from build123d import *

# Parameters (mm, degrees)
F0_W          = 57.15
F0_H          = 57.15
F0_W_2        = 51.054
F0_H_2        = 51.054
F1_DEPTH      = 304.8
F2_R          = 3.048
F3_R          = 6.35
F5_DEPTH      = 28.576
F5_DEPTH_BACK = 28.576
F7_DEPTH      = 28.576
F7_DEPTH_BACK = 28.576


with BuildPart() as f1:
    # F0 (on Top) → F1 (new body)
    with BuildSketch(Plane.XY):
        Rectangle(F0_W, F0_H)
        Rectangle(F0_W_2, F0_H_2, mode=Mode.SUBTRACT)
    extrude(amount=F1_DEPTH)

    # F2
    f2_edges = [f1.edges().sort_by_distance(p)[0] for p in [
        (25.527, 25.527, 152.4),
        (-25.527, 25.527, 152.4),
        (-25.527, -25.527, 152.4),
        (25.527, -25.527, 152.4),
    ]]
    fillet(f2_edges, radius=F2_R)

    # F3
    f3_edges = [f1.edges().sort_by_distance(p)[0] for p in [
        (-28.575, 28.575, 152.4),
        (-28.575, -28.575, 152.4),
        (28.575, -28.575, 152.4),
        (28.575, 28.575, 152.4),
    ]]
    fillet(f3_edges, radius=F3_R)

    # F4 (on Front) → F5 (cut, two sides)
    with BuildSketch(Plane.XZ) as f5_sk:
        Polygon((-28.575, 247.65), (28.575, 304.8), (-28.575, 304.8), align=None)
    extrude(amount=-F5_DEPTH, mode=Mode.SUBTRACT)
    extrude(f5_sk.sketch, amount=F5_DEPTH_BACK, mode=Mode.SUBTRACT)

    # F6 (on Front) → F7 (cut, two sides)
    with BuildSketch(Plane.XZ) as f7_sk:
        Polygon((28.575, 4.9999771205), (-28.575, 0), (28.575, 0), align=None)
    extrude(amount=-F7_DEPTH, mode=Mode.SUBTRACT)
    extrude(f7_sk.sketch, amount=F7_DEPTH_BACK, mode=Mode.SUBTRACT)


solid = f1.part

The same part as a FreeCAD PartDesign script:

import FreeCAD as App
import Part
import Sketcher

V = App.Vector
Q = App.Units.Quantity


def edges_at(feature, points):
    """Names of the edges that pass closest to the given points."""
    edges = feature.Shape.Edges
    near = lambda p: min(range(len(edges)), key=lambda i: edges[i].distToShape(Part.Vertex(*p))[0])
    return sorted({f"Edge{near(p) + 1}" for p in points})


def add_polygon(sketch, points):
    """Adds a closed chain of lines whose ends are joined by coincident constraints."""
    first, n = sketch.GeometryCount, len(points)
    for a, b in zip(points, points[1:] + points[:1]):
        sketch.addGeometry(Part.LineSegment(App.Vector(*a, 0), App.Vector(*b, 0)), False)
    for i in range(n):
        sketch.addConstraint(Sketcher.Constraint("Coincident", first + i, 2, first + (i + 1) % n, 1))

doc = App.newDocument("Part")
params = doc.addObject("Spreadsheet::Sheet", "Params")
for row, (alias, value) in enumerate([
    ("sketch1_width", "2.25 in"),
    ("sketch1_width2", "2.01 in"),
    ("pad1_length", "12 in"),
    ("fillet_radius", "0.12 in"),
    ("fillet2_radius", "0.25 in"),
    ("sketch2_width", "2.25 in"),
    ("sketch3_width", "2.25 in"),
], start=1):
    params.set(f"A{row}", alias)
    params.set(f"B{row}", "=" + value)
    params.setAlias(f"B{row}", alias)

body = doc.addObject("PartDesign::Body", "Body")

# Sketch on XY plane
sketch1 = body.newObject("Sketcher::SketchObject", "Sketch")
sketch1.AttachmentSupport = (doc.getObject("XY_Plane"), [""])
sketch1.MapMode = "FlatFace"
add_polygon(sketch1, [(-29, 29), (-29, -29), (29, -29), (29, 29)])  # lines 0-3
add_polygon(sketch1, [(26, -26), (-26, -26), (-26, 26), (26, 26)])  # lines 4-7
sketch1.addConstraint(Sketcher.Constraint("Vertical", 0))
sketch1.addConstraint(Sketcher.Constraint("Horizontal", 1))
sketch1.addConstraint(Sketcher.Constraint("Vertical", 2))
sketch1.addConstraint(Sketcher.Constraint("Horizontal", 3))
sketch1.addConstraint(Sketcher.Constraint("Horizontal", 4))
sketch1.addConstraint(Sketcher.Constraint("Vertical", 5))
sketch1.addConstraint(Sketcher.Constraint("Horizontal", 6))
sketch1.addConstraint(Sketcher.Constraint("Vertical", 7))
sketch1.addConstraint(Sketcher.Constraint("Symmetric", 0, 2, 2, 2, -1, 1))
sketch1.addConstraint(Sketcher.Constraint("Symmetric", 4, 2, 6, 2, -1, 1))
sketch1.addConstraint(Sketcher.Constraint("Equal", 3, 0))
sketch1.addConstraint(Sketcher.Constraint("Equal", 6, 5))
sketch1.addConstraint(Sketcher.Constraint("DistanceX", 1, 1, 1, 2, Q("2.25 in")))
sketch1.addConstraint(Sketcher.Constraint("DistanceX", 4, 2, 4, 1, Q("2.01 in")))
sketch1.setExpression("Constraints[20]", "Params.sketch1_width")
sketch1.setExpression("Constraints[21]", "Params.sketch1_width2")
pad1 = body.newObject("PartDesign::Pad", "Pad")
pad1.Profile = sketch1
pad1.setExpression("Length", "Params.pad1_length")
doc.recompute()

fillet = body.newObject("PartDesign::Fillet", "Fillet")
fillet.Base = (pad1, edges_at(pad1, [
    (25.527, 25.527, 152.4),
    (-25.527, 25.527, 152.4),
    (-25.527, -25.527, 152.4),
    (25.527, -25.527, 152.4),
]))
fillet.setExpression("Radius", "Params.fillet_radius")
doc.recompute()

fillet2 = body.newObject("PartDesign::Fillet", "Fillet001")
fillet2.Base = (fillet, edges_at(fillet, [
    (-28.575, 28.575, 152.4),
    (-28.575, -28.575, 152.4),
    (28.575, -28.575, 152.4),
    (28.575, 28.575, 152.4),
]))
fillet2.setExpression("Radius", "Params.fillet2_radius")

# Sketch on XZ plane
sketch2 = body.newObject("Sketcher::SketchObject", "Sketch001")
sketch2.AttachmentSupport = (doc.getObject("XZ_Plane"), [""])
sketch2.MapMode = "FlatFace"
add_polygon(sketch2, [(-29, 248), (29, 305), (-29, 305)])  # lines 0-2
sketch2.addConstraint(Sketcher.Constraint("Horizontal", 1))
sketch2.addConstraint(Sketcher.Constraint("Vertical", 2))
sketch2.addConstraint(Sketcher.Constraint("Equal", 1, 2))
sketch2.addConstraint(Sketcher.Constraint("DistanceY", -1, 1, 0, 2, Q("12 in")))
sketch2.addConstraint(Sketcher.Constraint("DistanceX", 1, 2, 1, 1, Q("2.25 in")))
sketch2.addConstraint(Sketcher.Constraint("DistanceX", -1, 1, 0, 2, Q("1.125 in")))
sketch2.setExpression("Constraints[7]", "Params.sketch2_width")
pocket1 = body.newObject("PartDesign::Pocket", "Pocket")
pocket1.Profile = sketch2
pocket1.Type = "ThroughAll"
pocket1.Midplane = True

# Sketch on XZ plane
sketch3 = body.newObject("Sketcher::SketchObject", "Sketch002")
sketch3.AttachmentSupport = (doc.getObject("XZ_Plane"), [""])
sketch3.MapMode = "FlatFace"
add_polygon(sketch3, [(28.6, 5), (-28.6, 0), (28.6, 0)])  # lines 0-2
sketch3.addConstraint(Sketcher.Constraint("Horizontal", 1))
sketch3.addConstraint(Sketcher.Constraint("Vertical", 2))
sketch3.addConstraint(Sketcher.Constraint("Symmetric", 0, 2, 1, 2, -1, 1))
sketch3.addConstraint(Sketcher.Constraint("Angle", 0, Q("-175 deg")))
sketch3.addConstraint(Sketcher.Constraint("DistanceX", 1, 1, 1, 2, Q("2.25 in")))
sketch3.setExpression("Constraints[7]", "Params.sketch3_width")
pocket2 = body.newObject("PartDesign::Pocket", "Pocket001")
pocket2.Profile = sketch3
pocket2.Type = "ThroughAll"
pocket2.Midplane = True

doc.recompute()
